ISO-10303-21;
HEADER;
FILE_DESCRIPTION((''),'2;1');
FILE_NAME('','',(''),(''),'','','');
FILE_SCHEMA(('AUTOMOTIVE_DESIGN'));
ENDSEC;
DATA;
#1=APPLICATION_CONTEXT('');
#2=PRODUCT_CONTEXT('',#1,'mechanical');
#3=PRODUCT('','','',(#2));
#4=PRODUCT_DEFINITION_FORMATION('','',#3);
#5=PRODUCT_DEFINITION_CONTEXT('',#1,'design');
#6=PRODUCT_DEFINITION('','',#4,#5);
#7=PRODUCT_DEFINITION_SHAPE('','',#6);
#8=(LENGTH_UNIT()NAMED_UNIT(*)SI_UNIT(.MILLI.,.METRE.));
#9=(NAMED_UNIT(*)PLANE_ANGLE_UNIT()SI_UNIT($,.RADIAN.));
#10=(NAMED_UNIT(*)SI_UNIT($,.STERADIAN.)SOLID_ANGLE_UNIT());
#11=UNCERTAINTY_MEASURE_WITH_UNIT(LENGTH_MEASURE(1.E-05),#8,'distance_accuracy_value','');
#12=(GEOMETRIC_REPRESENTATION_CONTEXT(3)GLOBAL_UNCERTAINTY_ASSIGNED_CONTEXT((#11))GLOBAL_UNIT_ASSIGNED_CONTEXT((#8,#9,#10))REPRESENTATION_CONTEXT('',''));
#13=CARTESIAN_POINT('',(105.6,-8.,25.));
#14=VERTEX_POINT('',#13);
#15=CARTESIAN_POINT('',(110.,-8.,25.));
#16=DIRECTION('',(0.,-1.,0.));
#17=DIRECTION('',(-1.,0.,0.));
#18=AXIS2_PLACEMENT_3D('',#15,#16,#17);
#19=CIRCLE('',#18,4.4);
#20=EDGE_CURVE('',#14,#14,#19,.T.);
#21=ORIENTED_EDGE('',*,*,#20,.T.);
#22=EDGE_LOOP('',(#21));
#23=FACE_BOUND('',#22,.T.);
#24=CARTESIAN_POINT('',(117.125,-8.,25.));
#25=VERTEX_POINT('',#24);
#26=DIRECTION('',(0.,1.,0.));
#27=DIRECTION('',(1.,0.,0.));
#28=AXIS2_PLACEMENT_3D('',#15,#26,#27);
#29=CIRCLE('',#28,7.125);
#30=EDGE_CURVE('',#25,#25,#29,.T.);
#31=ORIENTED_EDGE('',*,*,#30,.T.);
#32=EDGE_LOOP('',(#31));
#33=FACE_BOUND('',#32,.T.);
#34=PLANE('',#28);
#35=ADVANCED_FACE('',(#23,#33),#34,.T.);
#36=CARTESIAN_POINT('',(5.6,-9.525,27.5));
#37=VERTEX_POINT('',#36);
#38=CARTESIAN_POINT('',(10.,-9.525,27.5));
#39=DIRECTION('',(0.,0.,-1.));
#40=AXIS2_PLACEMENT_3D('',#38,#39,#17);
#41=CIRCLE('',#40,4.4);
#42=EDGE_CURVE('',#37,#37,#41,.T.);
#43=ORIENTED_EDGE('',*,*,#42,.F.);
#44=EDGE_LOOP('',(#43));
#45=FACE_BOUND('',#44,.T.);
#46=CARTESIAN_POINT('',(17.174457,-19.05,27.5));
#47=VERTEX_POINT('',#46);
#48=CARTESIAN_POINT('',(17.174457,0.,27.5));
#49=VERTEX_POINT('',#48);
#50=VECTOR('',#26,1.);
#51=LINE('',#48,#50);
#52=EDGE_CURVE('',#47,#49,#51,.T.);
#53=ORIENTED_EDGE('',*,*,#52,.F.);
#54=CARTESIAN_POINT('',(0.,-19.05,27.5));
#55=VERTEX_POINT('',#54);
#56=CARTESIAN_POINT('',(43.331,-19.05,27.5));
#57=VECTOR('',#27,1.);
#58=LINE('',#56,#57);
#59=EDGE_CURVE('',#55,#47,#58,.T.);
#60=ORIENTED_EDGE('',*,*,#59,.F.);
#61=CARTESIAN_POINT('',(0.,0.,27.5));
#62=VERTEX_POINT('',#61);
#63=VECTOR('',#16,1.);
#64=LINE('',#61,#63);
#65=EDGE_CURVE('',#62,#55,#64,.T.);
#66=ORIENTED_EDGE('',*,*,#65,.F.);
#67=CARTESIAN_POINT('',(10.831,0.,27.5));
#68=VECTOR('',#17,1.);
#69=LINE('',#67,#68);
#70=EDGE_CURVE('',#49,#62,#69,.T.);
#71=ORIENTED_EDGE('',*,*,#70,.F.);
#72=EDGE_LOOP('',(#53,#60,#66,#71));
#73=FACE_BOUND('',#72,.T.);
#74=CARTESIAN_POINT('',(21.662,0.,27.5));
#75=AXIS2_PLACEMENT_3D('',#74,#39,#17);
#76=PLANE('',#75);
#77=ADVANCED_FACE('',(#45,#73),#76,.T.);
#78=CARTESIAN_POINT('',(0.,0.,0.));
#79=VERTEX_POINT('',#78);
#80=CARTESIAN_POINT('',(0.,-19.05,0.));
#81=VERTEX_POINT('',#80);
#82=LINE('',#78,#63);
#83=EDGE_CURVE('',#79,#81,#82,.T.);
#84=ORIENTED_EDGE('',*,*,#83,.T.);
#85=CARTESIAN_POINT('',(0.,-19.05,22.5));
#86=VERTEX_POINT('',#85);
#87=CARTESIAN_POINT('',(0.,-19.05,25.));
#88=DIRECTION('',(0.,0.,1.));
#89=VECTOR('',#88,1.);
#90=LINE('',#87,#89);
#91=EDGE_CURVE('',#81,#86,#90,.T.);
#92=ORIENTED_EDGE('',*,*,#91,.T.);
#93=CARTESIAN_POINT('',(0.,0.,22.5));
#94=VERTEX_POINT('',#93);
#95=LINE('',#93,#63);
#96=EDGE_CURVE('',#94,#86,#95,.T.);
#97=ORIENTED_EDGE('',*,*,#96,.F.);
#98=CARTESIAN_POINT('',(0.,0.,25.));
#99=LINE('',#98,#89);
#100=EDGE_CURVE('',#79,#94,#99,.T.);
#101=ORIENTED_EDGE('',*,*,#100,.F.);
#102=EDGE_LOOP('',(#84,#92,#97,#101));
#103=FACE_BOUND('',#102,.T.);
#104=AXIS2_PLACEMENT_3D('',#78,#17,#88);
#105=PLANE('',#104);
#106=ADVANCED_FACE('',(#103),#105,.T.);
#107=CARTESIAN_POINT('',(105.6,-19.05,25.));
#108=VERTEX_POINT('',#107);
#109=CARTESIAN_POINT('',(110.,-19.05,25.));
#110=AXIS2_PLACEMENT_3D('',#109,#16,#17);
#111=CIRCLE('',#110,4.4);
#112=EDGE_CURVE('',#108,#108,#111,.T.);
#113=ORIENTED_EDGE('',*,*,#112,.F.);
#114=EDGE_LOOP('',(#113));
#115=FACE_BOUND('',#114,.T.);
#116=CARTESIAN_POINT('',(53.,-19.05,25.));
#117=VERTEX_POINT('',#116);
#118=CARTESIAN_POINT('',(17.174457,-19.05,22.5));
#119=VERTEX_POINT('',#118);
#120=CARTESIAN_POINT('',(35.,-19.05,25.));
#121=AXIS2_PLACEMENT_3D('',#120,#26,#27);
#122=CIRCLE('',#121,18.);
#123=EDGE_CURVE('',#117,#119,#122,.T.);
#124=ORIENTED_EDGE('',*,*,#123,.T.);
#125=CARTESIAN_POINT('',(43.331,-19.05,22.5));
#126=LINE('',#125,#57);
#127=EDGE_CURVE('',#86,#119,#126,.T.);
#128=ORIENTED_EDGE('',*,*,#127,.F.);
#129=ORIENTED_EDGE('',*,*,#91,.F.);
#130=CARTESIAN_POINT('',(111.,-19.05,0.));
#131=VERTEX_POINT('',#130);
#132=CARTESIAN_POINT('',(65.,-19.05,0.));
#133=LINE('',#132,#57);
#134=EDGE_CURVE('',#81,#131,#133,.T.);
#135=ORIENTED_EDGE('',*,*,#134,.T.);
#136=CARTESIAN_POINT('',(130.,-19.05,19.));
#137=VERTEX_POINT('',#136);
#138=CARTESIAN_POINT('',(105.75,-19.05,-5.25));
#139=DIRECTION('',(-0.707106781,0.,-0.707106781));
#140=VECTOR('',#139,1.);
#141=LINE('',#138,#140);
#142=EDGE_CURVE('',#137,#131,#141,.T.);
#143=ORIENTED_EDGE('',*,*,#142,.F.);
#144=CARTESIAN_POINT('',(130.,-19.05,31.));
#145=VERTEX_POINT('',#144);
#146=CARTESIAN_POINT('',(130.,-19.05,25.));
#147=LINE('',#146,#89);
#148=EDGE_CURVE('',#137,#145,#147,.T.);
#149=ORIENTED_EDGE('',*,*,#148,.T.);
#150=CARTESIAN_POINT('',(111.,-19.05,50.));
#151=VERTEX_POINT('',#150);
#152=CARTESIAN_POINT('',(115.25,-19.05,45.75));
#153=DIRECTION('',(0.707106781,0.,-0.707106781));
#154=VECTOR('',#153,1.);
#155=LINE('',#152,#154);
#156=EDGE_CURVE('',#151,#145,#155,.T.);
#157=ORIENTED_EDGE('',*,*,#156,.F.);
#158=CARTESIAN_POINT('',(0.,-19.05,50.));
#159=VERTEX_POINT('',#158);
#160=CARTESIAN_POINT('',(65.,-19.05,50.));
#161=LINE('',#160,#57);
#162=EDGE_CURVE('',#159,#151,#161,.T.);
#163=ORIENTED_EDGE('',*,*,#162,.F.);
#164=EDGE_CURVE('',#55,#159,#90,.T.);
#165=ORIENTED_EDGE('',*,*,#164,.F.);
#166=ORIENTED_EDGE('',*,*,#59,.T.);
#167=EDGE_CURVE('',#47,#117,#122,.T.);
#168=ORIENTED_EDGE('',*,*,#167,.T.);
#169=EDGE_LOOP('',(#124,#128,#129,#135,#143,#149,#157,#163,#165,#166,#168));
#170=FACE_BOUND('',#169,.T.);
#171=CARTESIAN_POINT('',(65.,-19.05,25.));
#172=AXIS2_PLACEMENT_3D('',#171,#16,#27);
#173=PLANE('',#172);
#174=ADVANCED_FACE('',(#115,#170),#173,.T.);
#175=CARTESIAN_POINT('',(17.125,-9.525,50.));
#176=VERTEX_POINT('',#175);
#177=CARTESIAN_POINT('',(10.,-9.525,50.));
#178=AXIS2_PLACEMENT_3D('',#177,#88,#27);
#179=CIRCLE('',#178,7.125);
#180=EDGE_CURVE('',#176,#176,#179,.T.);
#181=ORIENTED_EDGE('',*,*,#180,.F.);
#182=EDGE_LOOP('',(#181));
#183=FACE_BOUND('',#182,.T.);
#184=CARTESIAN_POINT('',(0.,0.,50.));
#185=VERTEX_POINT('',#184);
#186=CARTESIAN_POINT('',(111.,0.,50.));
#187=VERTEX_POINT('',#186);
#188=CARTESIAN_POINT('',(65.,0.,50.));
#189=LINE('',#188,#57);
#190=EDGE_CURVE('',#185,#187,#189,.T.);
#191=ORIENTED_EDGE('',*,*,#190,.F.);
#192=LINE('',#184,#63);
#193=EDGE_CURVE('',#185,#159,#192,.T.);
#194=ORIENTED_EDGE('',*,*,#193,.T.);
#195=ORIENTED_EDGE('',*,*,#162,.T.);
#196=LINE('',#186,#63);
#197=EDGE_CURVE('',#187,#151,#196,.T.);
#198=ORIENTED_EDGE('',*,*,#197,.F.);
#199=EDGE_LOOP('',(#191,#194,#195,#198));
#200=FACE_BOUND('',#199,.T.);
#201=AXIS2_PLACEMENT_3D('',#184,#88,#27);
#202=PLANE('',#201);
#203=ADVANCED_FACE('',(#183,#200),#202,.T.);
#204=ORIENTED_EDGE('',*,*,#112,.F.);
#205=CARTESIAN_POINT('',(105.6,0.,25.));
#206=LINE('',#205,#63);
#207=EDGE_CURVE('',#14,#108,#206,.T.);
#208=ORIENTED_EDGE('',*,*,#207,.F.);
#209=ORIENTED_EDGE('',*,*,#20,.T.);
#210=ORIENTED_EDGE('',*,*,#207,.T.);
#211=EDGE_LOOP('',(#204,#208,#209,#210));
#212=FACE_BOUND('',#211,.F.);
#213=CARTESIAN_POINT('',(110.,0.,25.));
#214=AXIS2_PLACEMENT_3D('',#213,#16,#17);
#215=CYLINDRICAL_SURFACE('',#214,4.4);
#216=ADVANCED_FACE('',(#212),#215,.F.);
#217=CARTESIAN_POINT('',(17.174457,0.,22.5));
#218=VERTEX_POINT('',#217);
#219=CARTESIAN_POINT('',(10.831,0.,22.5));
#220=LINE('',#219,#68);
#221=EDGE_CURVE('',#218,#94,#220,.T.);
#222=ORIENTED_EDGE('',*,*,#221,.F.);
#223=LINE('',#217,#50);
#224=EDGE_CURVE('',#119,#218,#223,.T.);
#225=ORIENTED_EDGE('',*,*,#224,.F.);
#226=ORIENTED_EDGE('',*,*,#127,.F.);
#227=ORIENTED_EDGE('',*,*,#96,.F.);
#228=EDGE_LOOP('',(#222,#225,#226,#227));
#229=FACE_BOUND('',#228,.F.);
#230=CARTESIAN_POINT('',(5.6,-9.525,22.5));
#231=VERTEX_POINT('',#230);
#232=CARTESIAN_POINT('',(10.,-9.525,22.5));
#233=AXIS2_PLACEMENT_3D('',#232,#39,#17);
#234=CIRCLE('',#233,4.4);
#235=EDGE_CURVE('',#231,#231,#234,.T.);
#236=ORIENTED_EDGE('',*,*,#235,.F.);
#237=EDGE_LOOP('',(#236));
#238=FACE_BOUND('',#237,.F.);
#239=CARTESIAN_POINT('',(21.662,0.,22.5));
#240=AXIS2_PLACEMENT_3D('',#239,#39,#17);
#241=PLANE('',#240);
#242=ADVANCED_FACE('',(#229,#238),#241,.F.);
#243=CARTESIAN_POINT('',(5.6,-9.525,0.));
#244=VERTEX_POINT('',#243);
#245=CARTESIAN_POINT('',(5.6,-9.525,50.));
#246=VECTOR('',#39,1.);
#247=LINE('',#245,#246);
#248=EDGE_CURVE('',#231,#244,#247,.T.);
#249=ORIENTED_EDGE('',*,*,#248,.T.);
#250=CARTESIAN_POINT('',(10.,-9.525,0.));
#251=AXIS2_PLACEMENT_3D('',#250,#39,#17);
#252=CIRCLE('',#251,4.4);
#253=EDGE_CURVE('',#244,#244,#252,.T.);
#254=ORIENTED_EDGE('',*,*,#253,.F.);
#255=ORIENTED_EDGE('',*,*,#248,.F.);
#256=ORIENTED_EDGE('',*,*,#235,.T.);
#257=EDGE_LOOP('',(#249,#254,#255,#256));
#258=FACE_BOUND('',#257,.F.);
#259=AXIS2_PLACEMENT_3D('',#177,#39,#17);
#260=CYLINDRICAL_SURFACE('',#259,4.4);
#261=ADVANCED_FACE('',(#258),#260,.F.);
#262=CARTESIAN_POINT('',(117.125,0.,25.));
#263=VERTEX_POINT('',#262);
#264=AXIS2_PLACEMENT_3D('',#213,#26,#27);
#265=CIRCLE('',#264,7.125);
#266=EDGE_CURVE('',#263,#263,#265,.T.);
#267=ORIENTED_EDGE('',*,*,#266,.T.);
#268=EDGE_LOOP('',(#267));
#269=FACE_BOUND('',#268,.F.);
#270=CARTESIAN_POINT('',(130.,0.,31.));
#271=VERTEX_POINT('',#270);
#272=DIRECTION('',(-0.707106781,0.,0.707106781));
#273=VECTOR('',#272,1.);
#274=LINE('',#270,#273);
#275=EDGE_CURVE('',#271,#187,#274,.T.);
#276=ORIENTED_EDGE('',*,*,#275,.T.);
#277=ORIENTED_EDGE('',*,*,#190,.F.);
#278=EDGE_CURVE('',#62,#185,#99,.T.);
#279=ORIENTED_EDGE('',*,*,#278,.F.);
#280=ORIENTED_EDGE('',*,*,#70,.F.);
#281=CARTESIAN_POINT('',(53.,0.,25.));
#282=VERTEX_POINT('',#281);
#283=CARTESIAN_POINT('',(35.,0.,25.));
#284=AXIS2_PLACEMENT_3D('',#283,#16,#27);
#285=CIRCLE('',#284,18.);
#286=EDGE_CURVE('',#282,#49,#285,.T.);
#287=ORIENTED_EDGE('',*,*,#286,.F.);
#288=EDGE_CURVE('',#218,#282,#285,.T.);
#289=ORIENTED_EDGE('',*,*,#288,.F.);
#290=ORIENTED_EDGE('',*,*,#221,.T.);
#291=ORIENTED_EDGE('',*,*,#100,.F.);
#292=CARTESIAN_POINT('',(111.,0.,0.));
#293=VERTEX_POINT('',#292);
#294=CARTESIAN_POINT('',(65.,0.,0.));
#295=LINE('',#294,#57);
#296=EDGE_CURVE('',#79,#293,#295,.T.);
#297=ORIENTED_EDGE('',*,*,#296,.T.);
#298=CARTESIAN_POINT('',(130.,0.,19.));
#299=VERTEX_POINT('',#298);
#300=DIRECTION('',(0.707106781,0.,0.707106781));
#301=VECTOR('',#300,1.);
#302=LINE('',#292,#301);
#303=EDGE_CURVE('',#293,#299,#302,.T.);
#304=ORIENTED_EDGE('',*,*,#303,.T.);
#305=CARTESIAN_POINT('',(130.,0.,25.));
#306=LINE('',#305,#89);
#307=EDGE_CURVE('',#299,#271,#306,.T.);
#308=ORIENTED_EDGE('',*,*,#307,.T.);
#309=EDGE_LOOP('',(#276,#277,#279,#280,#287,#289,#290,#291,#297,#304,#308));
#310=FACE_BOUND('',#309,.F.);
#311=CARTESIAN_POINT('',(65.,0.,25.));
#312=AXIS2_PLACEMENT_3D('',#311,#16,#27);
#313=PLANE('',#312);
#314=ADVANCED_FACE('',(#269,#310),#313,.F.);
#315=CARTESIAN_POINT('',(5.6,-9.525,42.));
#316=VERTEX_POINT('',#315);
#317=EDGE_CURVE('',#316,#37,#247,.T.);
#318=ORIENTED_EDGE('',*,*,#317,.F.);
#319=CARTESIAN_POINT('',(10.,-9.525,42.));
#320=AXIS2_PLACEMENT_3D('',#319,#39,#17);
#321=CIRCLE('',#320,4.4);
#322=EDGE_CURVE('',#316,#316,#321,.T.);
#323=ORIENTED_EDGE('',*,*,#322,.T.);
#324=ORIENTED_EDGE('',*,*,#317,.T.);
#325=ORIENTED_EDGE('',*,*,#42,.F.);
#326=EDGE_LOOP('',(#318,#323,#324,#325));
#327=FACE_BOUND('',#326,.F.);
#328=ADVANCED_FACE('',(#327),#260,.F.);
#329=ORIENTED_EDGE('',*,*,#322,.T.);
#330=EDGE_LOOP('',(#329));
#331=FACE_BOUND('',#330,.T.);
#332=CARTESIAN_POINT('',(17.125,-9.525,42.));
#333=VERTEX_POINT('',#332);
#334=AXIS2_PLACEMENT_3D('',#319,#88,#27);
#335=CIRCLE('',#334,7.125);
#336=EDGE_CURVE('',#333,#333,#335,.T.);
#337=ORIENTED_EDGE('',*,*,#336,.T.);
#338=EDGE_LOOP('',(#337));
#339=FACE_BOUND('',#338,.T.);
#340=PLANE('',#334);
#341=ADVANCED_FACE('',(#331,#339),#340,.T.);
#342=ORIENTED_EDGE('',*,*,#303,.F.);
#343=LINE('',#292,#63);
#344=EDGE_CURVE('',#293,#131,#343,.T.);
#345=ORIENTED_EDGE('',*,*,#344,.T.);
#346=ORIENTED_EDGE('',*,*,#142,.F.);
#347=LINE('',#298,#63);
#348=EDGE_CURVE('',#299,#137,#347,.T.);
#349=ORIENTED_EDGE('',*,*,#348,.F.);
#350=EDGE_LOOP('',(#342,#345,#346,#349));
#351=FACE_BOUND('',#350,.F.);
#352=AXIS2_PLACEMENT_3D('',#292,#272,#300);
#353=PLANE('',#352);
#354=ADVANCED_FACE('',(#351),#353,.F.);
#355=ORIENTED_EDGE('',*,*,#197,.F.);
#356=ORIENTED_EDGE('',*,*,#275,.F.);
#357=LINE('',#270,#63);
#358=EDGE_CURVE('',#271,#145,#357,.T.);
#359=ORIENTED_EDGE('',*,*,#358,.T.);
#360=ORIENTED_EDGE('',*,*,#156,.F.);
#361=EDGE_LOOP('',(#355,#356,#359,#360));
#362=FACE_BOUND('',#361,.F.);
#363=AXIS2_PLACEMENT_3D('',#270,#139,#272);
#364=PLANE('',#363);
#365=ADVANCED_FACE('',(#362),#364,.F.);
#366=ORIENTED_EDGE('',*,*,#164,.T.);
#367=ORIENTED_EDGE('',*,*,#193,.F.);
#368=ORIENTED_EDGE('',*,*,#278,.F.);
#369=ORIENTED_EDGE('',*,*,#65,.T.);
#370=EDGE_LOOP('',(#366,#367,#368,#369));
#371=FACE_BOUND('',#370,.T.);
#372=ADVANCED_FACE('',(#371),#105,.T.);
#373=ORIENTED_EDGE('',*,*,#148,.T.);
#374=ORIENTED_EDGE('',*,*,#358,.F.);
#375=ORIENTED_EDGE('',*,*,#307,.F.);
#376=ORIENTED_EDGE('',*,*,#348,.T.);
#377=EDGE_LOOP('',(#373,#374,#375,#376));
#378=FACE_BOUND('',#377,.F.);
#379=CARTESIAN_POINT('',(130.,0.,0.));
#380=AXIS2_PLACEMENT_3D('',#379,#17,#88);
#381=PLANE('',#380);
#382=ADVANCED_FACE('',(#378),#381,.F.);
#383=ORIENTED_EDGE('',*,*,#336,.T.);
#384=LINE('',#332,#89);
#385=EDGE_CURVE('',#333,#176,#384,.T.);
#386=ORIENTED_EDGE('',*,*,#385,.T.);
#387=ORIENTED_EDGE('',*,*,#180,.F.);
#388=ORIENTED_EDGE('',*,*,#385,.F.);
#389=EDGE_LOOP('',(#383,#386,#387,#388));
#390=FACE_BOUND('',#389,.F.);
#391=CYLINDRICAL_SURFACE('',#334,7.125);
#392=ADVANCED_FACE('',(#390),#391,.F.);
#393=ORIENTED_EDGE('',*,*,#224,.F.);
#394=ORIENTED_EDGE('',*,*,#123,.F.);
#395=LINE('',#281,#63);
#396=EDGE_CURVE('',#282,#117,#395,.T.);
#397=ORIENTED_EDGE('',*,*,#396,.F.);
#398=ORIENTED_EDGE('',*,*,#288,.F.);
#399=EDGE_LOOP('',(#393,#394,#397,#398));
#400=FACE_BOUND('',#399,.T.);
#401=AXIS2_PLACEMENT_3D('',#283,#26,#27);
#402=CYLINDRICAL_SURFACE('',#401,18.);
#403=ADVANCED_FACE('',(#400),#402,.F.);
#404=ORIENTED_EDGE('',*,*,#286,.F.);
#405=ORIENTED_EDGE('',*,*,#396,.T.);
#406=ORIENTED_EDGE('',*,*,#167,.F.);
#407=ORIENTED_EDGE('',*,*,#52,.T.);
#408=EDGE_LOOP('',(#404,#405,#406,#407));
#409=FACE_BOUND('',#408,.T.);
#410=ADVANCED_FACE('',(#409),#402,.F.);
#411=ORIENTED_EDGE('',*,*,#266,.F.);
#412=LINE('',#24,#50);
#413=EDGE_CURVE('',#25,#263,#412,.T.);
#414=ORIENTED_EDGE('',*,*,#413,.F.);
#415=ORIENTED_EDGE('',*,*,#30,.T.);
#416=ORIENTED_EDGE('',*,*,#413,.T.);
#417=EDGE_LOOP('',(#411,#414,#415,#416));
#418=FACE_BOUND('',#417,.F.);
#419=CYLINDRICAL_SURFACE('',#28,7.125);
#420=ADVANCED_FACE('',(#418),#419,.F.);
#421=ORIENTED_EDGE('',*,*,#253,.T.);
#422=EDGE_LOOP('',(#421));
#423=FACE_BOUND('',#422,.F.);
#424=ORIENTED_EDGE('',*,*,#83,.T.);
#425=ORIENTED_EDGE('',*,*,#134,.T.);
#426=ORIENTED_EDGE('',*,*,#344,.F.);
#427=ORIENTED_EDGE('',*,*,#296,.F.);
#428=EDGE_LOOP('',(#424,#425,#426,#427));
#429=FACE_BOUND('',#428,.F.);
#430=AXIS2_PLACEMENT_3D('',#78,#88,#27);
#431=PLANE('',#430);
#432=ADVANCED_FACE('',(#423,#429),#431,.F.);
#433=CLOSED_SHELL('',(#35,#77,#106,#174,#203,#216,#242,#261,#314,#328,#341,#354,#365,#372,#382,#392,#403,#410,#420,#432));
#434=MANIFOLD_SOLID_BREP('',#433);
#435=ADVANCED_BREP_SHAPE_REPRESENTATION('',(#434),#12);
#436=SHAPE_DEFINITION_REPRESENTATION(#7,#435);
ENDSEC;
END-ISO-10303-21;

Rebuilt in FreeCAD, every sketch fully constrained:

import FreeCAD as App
import Part
import Sketcher
from FreeCAD import Vector


def add_polygon(sketch, points):
    """Adds a closed chain of lines whose ends are joined by coincident constraints."""
    first, n = sketch.GeometryCount, len(points)
    for a, b in zip(points, points[1:] + points[:1]):
        sketch.addGeometry(Part.LineSegment(App.Vector(*a, 0), App.Vector(*b, 0)), False)
    for i in range(n):
        sketch.addConstraint(Sketcher.Constraint("Coincident", first + i, 2, first + (i + 1) % n, 1))

doc = App.newDocument("Part")
body = doc.addObject("PartDesign::Body", "Body")

sketch1 = body.newObject("Sketcher::SketchObject", "Sketch")
sketch1.AttachmentSupport = (doc.getObject("XZ_Plane"), [""])
sketch1.MapMode = "FlatFace"
add_polygon(sketch1, [(0, 50), (0, 0), (130, 0), (130, 50)])
sketch1.addConstraint(Sketcher.Constraint("Vertical", 0))
sketch1.addConstraint(Sketcher.Constraint("Horizontal", 1))
sketch1.addConstraint(Sketcher.Constraint("Vertical", 2))
sketch1.addConstraint(Sketcher.Constraint("Horizontal", 3))
sketch1.addConstraint(Sketcher.Constraint("Coincident", 0, 2, -1, 1))
sketch1.addConstraint(Sketcher.Constraint("DistanceX", 1, 1, 1, 2, 130.0))
sketch1.addConstraint(Sketcher.Constraint("DistanceY", 0, 2, 0, 1, 50.0))
pad1 = body.newObject("PartDesign::Pad", "Pad")
pad1.Profile = sketch1
pad1.Length = 19.05

sketch2 = body.newObject("Sketcher::SketchObject", "Sketch001")
sketch2.AttachmentSupport = (doc.getObject("XZ_Plane"), [""])
sketch2.MapMode = "FlatFace"
sketch2.addGeometry(Part.Circle(Vector(35, 25, 0), Vector(0, 0, 1), 18), False)
sketch2.addConstraint(Sketcher.Constraint("Diameter", 0, 36.0))
sketch2.addConstraint(Sketcher.Constraint("DistanceX", -1, 1, 0, 3, 35.0))
sketch2.addConstraint(Sketcher.Constraint("DistanceY", -1, 1, 0, 3, 25.0))
pocket1 = body.newObject("PartDesign::Pocket", "Pocket")
pocket1.Profile = sketch2
pocket1.Length = 40
pocket1.Reversed = True

sketch3 = body.newObject("Sketcher::SketchObject", "Sketch002")
sketch3.AttachmentSupport = (doc.getObject("XZ_Plane"), [""])
sketch3.MapMode = "FlatFace"
sketch3.addGeometry(Part.Circle(Vector(110, 25, 0), Vector(0, 0, 1), 4.4), False)
sketch3.addConstraint(Sketcher.Constraint("Diameter", 0, 8.8))
sketch3.addConstraint(Sketcher.Constraint("DistanceX", -1, 1, 0, 3, 110.0))
sketch3.addConstraint(Sketcher.Constraint("DistanceY", -1, 1, 0, 3, 25.0))
doc.recompute()
hole = body.newObject("PartDesign::Hole", "Hole")
hole.Profile = sketch3
hole.ThreadType = "None"
hole.Diameter = 8.8
hole.DepthType = "ThroughAll"
hole.HoleCutType = "Counterbore"
hole.HoleCutDiameter = 14.25
hole.HoleCutDepth = 8
hole.Reversed = True

sketch4 = body.newObject("Sketcher::SketchObject", "Sketch003")
sketch4.AttachmentSupport = (doc.getObject("XY_Plane"), [""])
sketch4.MapMode = "FlatFace"
sketch4.AttachmentOffset = App.Placement(Vector(0, 0, 50), App.Rotation())
sketch4.addGeometry(Part.Circle(Vector(10, -9.5, 0), Vector(0, 0, 1), 4.4), False)
sketch4.addConstraint(Sketcher.Constraint("Diameter", 0, 8.8))
sketch4.addConstraint(Sketcher.Constraint("DistanceX", -1, 1, 0, 3, 10.0))
sketch4.addConstraint(Sketcher.Constraint("DistanceY", 0, 3, -1, 1, 9.525))
doc.recompute()
hole2 = body.newObject("PartDesign::Hole", "Hole001")
hole2.Profile = sketch4
hole2.ThreadType = "None"
hole2.Diameter = 8.8
hole2.DepthType = "ThroughAll"
hole2.HoleCutType = "Counterbore"
hole2.HoleCutDiameter = 14.25
hole2.HoleCutDepth = 8

sketch5 = body.newObject("Sketcher::SketchObject", "Sketch004")
sketch5.AttachmentSupport = (doc.getObject("XZ_Plane"), [""])
sketch5.MapMode = "FlatFace"
add_polygon(sketch5, [(22, 28), (22, 22), (0, 22), (0, 28)])
sketch5.addConstraint(Sketcher.Constraint("Vertical", 0))
sketch5.addConstraint(Sketcher.Constraint("Horizontal", 1))
sketch5.addConstraint(Sketcher.Constraint("Vertical", 2))
sketch5.addConstraint(Sketcher.Constraint("Horizontal", 3))
sketch5.addConstraint(Sketcher.Constraint("PointOnObject", 1, 2, -2))
sketch5.addConstraint(Sketcher.Constraint("DistanceY", 0, 2, 0, 1, 5.0))
sketch5.addConstraint(Sketcher.Constraint("DistanceY", -1, 1, 0, 2, 22.5))
sketch5.addConstraint(Sketcher.Constraint("DistanceX", 1, 2, 1, 1, 21.662))
pocket2 = body.newObject("PartDesign::Pocket", "Pocket001")
pocket2.Profile = sketch5
pocket2.Length = 40
pocket2.Reversed = True

sketch6 = body.newObject("Sketcher::SketchObject", "Sketch005")
sketch6.AttachmentSupport = (doc.getObject("XZ_Plane"), [""])
sketch6.MapMode = "FlatFace"
add_polygon(sketch6, [(130, 19), (130, 0), (111, 0)])
add_polygon(sketch6, [(130, 50), (130, 31), (111, 50)])
sketch6.addConstraint(Sketcher.Constraint("Vertical", 0))
sketch6.addConstraint(Sketcher.Constraint("Horizontal", 1))
sketch6.addConstraint(Sketcher.Constraint("Vertical", 3))
sketch6.addConstraint(Sketcher.Constraint("Horizontal", 5))
sketch6.addConstraint(Sketcher.Constraint("PointOnObject", 0, 2, -1))
sketch6.addConstraint(Sketcher.Constraint("Perpendicular", 2, 4))
sketch6.addConstraint(Sketcher.Constraint("Vertical", 2, 2, 3, 2))
sketch6.addConstraint(Sketcher.Constraint("Vertical", 1, 2, 4, 2))
sketch6.addConstraint(Sketcher.Constraint("Equal", 5, 0))
sketch6.addConstraint(Sketcher.Constraint("DistanceX", 1, 2, 1, 1, 19.0))
sketch6.addConstraint(Sketcher.Constraint("DistanceX", -1, 1, 0, 2, 130.0))
sketch6.addConstraint(Sketcher.Constraint("DistanceY", -1, 1, 3, 2, 31.0))
pocket3 = body.newObject("PartDesign::Pocket", "Pocket002")
pocket3.Profile = sketch6
pocket3.Length = 25
pocket3.Reversed = True

doc.recompute()
